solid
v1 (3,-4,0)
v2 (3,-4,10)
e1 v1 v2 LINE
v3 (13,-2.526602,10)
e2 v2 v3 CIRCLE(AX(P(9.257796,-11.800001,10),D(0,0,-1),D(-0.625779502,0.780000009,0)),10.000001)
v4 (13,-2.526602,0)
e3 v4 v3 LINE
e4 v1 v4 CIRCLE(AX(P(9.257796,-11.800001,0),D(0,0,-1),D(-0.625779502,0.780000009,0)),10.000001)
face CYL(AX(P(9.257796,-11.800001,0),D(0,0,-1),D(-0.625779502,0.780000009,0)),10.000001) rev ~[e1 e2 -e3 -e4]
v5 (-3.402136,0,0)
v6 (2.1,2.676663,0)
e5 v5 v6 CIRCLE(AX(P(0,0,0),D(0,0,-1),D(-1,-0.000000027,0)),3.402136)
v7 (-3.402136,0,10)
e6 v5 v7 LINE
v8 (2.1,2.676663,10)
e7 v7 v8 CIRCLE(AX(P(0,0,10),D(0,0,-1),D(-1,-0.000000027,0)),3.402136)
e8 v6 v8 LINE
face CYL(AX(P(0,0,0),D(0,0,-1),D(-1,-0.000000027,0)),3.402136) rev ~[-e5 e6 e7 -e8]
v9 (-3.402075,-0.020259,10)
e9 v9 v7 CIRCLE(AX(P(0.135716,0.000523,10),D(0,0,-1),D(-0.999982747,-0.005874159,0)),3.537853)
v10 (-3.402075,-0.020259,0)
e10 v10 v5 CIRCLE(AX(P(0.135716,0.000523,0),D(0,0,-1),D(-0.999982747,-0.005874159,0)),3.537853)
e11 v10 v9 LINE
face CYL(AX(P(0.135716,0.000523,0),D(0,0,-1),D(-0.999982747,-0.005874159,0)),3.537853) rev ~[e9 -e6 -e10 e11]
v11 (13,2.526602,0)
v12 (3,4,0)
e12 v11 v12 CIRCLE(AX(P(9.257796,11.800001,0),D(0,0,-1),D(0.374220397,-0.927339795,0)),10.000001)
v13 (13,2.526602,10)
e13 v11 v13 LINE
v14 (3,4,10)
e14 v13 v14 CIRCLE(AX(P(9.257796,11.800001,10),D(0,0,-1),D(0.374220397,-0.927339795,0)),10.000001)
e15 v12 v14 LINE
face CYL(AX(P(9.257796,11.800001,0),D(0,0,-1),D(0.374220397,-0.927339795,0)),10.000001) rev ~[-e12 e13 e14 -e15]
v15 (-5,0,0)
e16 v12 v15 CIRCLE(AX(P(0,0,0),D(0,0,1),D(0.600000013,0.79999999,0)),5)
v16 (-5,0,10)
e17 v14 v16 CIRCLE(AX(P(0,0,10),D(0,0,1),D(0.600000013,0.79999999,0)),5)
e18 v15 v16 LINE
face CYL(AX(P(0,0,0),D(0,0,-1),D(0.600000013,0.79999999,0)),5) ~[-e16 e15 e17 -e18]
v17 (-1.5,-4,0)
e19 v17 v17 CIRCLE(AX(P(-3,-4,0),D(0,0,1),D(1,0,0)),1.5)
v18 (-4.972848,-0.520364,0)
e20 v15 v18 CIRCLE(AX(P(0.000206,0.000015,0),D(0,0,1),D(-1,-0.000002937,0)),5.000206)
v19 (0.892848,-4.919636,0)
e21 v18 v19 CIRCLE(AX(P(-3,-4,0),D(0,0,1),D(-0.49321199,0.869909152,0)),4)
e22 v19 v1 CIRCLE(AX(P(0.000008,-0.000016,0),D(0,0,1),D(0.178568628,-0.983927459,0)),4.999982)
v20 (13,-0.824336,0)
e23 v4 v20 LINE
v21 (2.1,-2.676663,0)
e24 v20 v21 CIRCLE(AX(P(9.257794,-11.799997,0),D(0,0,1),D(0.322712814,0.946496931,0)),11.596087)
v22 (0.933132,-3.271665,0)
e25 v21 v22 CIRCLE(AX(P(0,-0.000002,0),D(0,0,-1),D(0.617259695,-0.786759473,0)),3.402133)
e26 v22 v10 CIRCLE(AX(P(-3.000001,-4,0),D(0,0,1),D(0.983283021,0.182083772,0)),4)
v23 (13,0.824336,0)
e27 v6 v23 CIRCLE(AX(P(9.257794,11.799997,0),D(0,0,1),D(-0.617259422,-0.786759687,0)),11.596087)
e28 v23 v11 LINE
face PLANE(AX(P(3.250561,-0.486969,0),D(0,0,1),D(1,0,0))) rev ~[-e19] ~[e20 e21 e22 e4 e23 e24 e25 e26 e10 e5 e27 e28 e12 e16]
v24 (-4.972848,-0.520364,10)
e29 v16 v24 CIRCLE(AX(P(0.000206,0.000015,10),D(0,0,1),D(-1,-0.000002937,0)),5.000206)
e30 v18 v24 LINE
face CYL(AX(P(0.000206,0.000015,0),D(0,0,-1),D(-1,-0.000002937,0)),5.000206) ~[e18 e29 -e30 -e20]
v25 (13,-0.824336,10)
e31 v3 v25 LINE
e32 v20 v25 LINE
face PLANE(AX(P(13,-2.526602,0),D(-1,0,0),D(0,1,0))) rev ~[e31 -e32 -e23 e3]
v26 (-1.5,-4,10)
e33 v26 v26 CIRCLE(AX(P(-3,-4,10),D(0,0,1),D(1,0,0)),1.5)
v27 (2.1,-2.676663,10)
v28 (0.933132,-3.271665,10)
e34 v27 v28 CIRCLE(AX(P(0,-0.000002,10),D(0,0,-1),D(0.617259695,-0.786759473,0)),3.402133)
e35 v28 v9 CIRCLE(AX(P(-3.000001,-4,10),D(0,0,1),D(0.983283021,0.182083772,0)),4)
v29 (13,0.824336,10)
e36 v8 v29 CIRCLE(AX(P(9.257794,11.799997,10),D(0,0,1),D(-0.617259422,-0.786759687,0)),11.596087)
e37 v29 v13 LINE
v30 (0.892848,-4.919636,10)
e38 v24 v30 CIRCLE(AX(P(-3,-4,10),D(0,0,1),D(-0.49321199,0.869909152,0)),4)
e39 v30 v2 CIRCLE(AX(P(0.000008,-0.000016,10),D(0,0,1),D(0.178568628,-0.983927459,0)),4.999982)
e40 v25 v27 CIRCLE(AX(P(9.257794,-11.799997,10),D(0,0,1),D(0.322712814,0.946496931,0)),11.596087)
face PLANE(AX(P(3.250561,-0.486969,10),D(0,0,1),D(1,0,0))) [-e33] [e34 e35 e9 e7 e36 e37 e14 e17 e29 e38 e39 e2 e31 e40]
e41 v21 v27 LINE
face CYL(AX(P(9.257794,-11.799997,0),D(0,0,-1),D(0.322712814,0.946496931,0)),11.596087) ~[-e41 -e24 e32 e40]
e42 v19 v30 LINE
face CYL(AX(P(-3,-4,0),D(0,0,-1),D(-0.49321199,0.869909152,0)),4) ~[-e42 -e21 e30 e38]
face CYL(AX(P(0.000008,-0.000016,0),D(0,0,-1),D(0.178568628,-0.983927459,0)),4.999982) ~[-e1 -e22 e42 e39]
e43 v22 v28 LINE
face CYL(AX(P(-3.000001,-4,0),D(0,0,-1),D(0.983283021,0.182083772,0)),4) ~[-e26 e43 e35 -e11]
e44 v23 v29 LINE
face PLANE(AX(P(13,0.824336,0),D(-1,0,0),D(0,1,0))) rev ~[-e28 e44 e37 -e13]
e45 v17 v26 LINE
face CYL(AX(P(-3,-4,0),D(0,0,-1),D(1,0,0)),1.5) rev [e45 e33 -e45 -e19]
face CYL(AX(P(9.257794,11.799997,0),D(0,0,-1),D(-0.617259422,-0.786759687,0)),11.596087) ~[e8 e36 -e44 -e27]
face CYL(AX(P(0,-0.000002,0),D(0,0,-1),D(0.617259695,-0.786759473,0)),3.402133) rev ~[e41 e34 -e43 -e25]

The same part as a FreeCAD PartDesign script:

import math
import FreeCAD as App
import Part
import Sketcher

doc = App.newDocument("Part")
body = doc.addObject("PartDesign::Body", "Body")

# Sketch on XY plane
sketch1 = body.newObject("Sketcher::SketchObject", "Sketch")
sketch1.AttachmentSupport = (doc.getObject("XY_Plane"), [""])
sketch1.MapMode = "FlatFace"
sketch1.addGeometry([
    Part.ArcOfCircle(Part.Circle(App.Vector(9.258, 11.8, 0), App.Vector(0, 0, 1), 10), math.radians(-129), math.radians(-68)),  # 0
    Part.ArcOfCircle(Part.Circle(App.Vector(0, 0, 0), App.Vector(0, 0, 1), 5), math.radians(53), math.radians(180)),  # 1
    Part.ArcOfCircle(Part.Circle(App.Vector(0, 0, 0), App.Vector(0, 0, 1), 5), math.radians(-180), math.radians(-174.03)),  # 2
    Part.ArcOfCircle(Part.Circle(App.Vector(-3, -4, 0), App.Vector(0, 0, 1), 4), math.radians(120), math.radians(347)),  # 3
    Part.ArcOfCircle(Part.Circle(App.Vector(0, 0, 0), App.Vector(0, 0, 1), 5), math.radians(-80), math.radians(-53)),  # 4
    Part.ArcOfCircle(Part.Circle(App.Vector(9.258, -11.8, 0), App.Vector(0, 0, 1), 10), math.radians(68), math.radians(129)),  # 5
    Part.LineSegment(App.Vector(13, -2.527, 0), App.Vector(13, -0.824, 0)),  # 6
    Part.ArcOfCircle(Part.Circle(App.Vector(9.258, -11.8, 0), App.Vector(0, 0, 1), 11.596), math.radians(71), math.radians(128)),  # 7
    Part.ArcOfCircle(Part.Circle(App.Vector(0, 0, 0), App.Vector(0, 0, 1), 3.402), math.radians(-74), math.radians(-52)),  # 8
    Part.ArcOfCircle(Part.Circle(App.Vector(-3, -4, 0), App.Vector(0, 0, 1), 4), math.radians(10), math.radians(96)),  # 9
    Part.ArcOfCircle(Part.Circle(App.Vector(0.136, 0.001, 0), App.Vector(0, 0, 1), 3.538), math.radians(-179.99), math.radians(-179.66)),  # 10
    Part.ArcOfCircle(Part.Circle(App.Vector(0, 0, 0), App.Vector(0, 0, 1), 3.402), math.radians(52), math.radians(180)),  # 11
    Part.ArcOfCircle(Part.Circle(App.Vector(9.258, 11.8, 0), App.Vector(0, 0, 1), 11.596), math.radians(-128), math.radians(-71)),  # 12
    Part.LineSegment(App.Vector(13, 0.824, 0), App.Vector(13, 2.527, 0)),  # 13
    Part.Circle(App.Vector(-3, -4, 0), App.Vector(0, 0, 1), 1.5),  # 14
], False)
sketch1.addConstraint([
    Sketcher.Constraint("Coincident", 0, 1, 1, 1),
    Sketcher.Constraint("Coincident", 1, 2, 2, 1),
    Sketcher.Constraint("Coincident", 2, 2, 3, 1),
    Sketcher.Constraint("Coincident", 3, 2, 4, 1),
    Sketcher.Constraint("Coincident", 4, 2, 5, 2),
    Sketcher.Constraint("Coincident", 5, 1, 6, 1),
    Sketcher.Constraint("Coincident", 6, 2, 7, 1),
    Sketcher.Constraint("Tangent", 7, 2, 8, 2),
    Sketcher.Constraint("Coincident", 8, 1, 9, 1),
    Sketcher.Constraint("Coincident", 9, 2, 10, 2),
    Sketcher.Constraint("Coincident", 10, 1, 11, 2),
    Sketcher.Constraint("Tangent", 11, 1, 12, 1),
    Sketcher.Constraint("Coincident", 12, 2, 13, 1),
    Sketcher.Constraint("Coincident", 13, 2, 0, 2),
    Sketcher.Constraint("Vertical", 6),
    Sketcher.Constraint("Vertical", 13),
    Sketcher.Constraint("Coincident", 1, 3, -1, 1),
    Sketcher.Constraint("Coincident", 8, 3, -1, 1),
    Sketcher.Constraint("Coincident", 11, 3, -1, 1),
    Sketcher.Constraint("Coincident", 7, 3, 5, 3),
    Sketcher.Constraint("Coincident", 9, 3, 3, 3),
    Sketcher.Constraint("Coincident", 12, 3, 0, 3),
    Sketcher.Constraint("Coincident", 14, 3, 3, 3),
    Sketcher.Constraint("Equal", 0, 5),
    Sketcher.Constraint("Equal", 3, 9),
    Sketcher.Constraint("Equal", 7, 12),
    Sketcher.Constraint("Symmetric", 0, 3, 5, 3, -1),
    Sketcher.Constraint("PointOnObject", 1, 2, -1),
    Sketcher.Constraint("PointOnObject", 10, 1, -1),
    Sketcher.Constraint("Horizontal", 14, 3, 4, 2),
    Sketcher.Constraint("Vertical", 0, 1, 4, 2),
    Sketcher.Constraint("Vertical", 6, 2, 12, 2),
    Sketcher.Constraint("Diameter", 14, 3.0),
    Sketcher.Constraint("Radius", 0, 10.000001),
    Sketcher.Constraint("Radius", 1, 5.0),
    Sketcher.Constraint("Radius", 3, 4.0),
    Sketcher.Constraint("DistanceX", 3, 3, -1, 1, 3.0),
    Sketcher.Constraint("DistanceY", 3, 3, -1, 1, 4.0),
    Sketcher.Constraint("DistanceX", -1, 1, 5, 1, 13.0),
    Sketcher.Constraint("DistanceY", -1, 1, 0, 3, 11.800001),
    Sketcher.Constraint("DistanceX", -1, 1, 7, 2, 2.1),
    Sketcher.Constraint("Radius", 2, 5.000206),
    Sketcher.Constraint("Radius", 4, 4.999982),
    Sketcher.Constraint("Radius", 10, 3.537853),
    Sketcher.Constraint("DistanceX", 4, 3, 2, 3, 0.000198),
    Sketcher.Constraint("DistanceY", 7, 3, 2, 3, 11.800012),
    Sketcher.Constraint("DistanceY", 2, 3, 10, 3, 0.000508),
])
pad1 = body.newObject("PartDesign::Pad", "Pad")
pad1.Profile = sketch1
pad1.Length = 10

doc.recompute()
